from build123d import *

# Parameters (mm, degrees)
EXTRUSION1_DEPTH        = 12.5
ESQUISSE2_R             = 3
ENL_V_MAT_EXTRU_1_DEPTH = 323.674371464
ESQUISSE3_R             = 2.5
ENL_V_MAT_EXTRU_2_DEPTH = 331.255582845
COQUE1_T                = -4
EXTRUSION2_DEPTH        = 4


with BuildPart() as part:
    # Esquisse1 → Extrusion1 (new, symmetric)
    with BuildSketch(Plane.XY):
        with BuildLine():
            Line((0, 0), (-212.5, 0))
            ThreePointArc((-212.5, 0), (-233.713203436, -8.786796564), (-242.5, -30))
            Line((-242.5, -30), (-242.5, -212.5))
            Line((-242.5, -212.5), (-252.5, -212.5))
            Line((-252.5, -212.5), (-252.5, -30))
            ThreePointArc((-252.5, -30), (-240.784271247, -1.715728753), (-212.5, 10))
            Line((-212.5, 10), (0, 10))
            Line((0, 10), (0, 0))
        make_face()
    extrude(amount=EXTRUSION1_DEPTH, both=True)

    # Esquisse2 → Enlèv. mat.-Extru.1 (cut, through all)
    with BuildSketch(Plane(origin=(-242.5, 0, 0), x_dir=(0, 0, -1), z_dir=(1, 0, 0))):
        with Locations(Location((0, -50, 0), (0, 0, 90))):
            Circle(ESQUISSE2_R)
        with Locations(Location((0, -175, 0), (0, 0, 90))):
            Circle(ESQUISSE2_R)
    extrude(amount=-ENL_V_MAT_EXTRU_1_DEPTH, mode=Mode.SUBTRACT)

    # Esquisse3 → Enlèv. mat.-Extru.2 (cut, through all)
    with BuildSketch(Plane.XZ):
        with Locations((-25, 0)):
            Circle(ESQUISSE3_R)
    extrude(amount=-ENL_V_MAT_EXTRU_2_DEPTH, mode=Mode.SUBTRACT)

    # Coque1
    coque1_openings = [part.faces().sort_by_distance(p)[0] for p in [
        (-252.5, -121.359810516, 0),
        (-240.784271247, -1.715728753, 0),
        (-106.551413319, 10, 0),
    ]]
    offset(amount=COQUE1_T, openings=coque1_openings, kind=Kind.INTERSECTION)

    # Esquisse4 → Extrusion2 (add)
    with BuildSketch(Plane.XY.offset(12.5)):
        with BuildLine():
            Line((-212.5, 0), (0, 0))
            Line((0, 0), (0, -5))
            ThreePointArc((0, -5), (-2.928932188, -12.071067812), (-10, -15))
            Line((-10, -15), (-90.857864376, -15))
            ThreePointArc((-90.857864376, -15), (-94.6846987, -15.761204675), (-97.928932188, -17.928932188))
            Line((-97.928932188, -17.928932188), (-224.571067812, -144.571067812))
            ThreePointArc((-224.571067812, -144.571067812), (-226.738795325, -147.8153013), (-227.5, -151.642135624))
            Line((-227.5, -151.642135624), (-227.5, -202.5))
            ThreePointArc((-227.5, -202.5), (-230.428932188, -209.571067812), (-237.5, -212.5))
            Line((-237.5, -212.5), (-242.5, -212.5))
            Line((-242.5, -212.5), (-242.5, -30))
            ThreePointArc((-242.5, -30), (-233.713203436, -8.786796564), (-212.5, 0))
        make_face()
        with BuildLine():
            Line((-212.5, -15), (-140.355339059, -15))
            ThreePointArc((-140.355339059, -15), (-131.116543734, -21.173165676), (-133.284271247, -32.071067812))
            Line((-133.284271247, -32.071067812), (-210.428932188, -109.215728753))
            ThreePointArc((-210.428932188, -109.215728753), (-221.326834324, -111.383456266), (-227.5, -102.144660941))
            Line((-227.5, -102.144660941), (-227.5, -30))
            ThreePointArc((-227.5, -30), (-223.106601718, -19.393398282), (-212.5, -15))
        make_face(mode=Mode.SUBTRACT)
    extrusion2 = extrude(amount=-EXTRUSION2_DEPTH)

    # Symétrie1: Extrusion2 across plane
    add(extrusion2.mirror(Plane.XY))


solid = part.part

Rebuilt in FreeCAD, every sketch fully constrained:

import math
import FreeCAD as App
import Part
import Sketcher
from FreeCAD import Vector


def faces_at(feature, points):
    """Names of the faces that lie closest to the given points."""
    faces = feature.Shape.Faces
    near = lambda p: min(range(len(faces)), key=lambda i: faces[i].distToShape(Part.Vertex(*p))[0])
    return sorted({f"Face{near(p) + 1}" for p in points})

doc = App.newDocument("Part")
body = doc.addObject("PartDesign::Body", "Body")

sketch1 = body.newObject("Sketcher::SketchObject", "Sketch")
sketch1.AttachmentSupport = (doc.getObject("XY_Plane"), [""])
sketch1.MapMode = "FlatFace"
sketch1.addGeometry([
    Part.LineSegment(Vector(-212, 0, 0), Vector(0, 0, 0)),
    Part.LineSegment(Vector(0, 0, 0), Vector(0, 10, 0)),
    Part.LineSegment(Vector(0, 10, 0), Vector(-212, 10, 0)),
    Part.ArcOfCircle(Part.Circle(Vector(-212, -30, 0), Vector(0, 0, 1), 40), math.radians(90), math.radians(180)),
    Part.LineSegment(Vector(-252, -30, 0), Vector(-252, -212, 0)),
    Part.LineSegment(Vector(-252, -212, 0), Vector(-242, -212, 0)),
    Part.LineSegment(Vector(-242, -212, 0), Vector(-242, -30, 0)),
    Part.ArcOfCircle(Part.Circle(Vector(-213, -30, 0), Vector(0, 0, 1), 30), math.radians(90), math.radians(180)),
], False)
sketch1.addConstraint([
    Sketcher.Constraint("Coincident", 0, 2, 1, 1),
    Sketcher.Constraint("Coincident", 1, 2, 2, 1),
    Sketcher.Constraint("Tangent", 2, 2, 3, 1),
    Sketcher.Constraint("Tangent", 3, 2, 4, 1),
    Sketcher.Constraint("Coincident", 4, 2, 5, 1),
    Sketcher.Constraint("Coincident", 5, 2, 6, 1),
    Sketcher.Constraint("Tangent", 6, 2, 7, 2),
    Sketcher.Constraint("Tangent", 7, 1, 0, 1),
    Sketcher.Constraint("Horizontal", 0),
    Sketcher.Constraint("Vertical", 1),
    Sketcher.Constraint("Horizontal", 2),
    Sketcher.Constraint("Vertical", 4),
    Sketcher.Constraint("Horizontal", 5),
    Sketcher.Constraint("Vertical", 6),
    Sketcher.Constraint("Coincident", 0, 2, -1, 1),
    Sketcher.Constraint("Coincident", 7, 3, 3, 3),
    Sketcher.Constraint("Radius", 3, 40.0),
    Sketcher.Constraint("Radius", 7, 30.0),
    Sketcher.Constraint("DistanceX", 0, 1, 0, 2, 212.5),
    Sketcher.Constraint("DistanceY", 4, 2, 4, 1, 182.5),
])
pad1 = body.newObject("PartDesign::Pad", "Pad")
pad1.Profile = sketch1
pad1.Length = 25
pad1.Midplane = True

sketch2 = body.newObject("Sketcher::SketchObject", "Sketch001")
sketch2.AttachmentSupport = (doc.getObject("YZ_Plane"), [""])
sketch2.MapMode = "FlatFace"
sketch2.AttachmentOffset = App.Placement(Vector(0, 0, -242.5), App.Rotation())
sketch2.addGeometry([
    Part.Circle(Vector(-50, 0, 0), Vector(0, 0, 1), 3),
    Part.Circle(Vector(-175, 0, 0), Vector(0, 0, 1), 3),
], False)
sketch2.addConstraint([
    Sketcher.Constraint("Equal", 0, 1),
    Sketcher.Constraint("PointOnObject", 0, 3, -1),
    Sketcher.Constraint("PointOnObject", 1, 3, -1),
    Sketcher.Constraint("Diameter", 0, 6.0),
    Sketcher.Constraint("DistanceX", 0, 3, -1, 1, 50.0),
    Sketcher.Constraint("DistanceX", 1, 3, -1, 1, 175.0),
])
pocket1 = body.newObject("PartDesign::Pocket", "Pocket")
pocket1.Profile = sketch2
pocket1.Type = "ThroughAll"

sketch3 = body.newObject("Sketcher::SketchObject", "Sketch002")
sketch3.AttachmentSupport = (doc.getObject("XZ_Plane"), [""])
sketch3.MapMode = "FlatFace"
sketch3.addGeometry(Part.Circle(Vector(-25, 0, 0), Vector(0, 0, 1), 2.5), False)
sketch3.addConstraint([
    Sketcher.Constraint("PointOnObject", 0, 3, -1),
    Sketcher.Constraint("Diameter", 0, 5.0),
    Sketcher.Constraint("DistanceX", 0, 3, -1, 1, 25.0),
])
pocket2 = body.newObject("PartDesign::Pocket", "Pocket001")
pocket2.Profile = sketch3
pocket2.Type = "ThroughAll"
doc.recompute()

thickness = body.newObject("PartDesign::Thickness", "Thickness")
thickness.Base = (pocket2, faces_at(pocket2, [(-252.5, -121.25, 0), (-240.784, -1.716, 0), (-106.25, 10, 0)]))
thickness.Value = 4
thickness.Reversed = True
thickness.Join = "Intersection"

sketch4 = body.newObject("Sketcher::SketchObject", "Sketch003")
sketch4.AttachmentSupport = (doc.getObject("XY_Plane"), [""])
sketch4.MapMode = "FlatFace"
sketch4.AttachmentOffset = App.Placement(Vector(0, 0, 12.5), App.Rotation())
sketch4.addGeometry([
    Part.LineSegment(Vector(0, 0, 0), Vector(-212, 0, 0)),
    Part.ArcOfCircle(Part.Circle(Vector(-213, -30, 0), Vector(0, 0, 1), 30), math.radians(90), math.radians(180)),
    Part.LineSegment(Vector(-242, -30, 0), Vector(-242, -212, 0)),
    Part.LineSegment(Vector(-242, -212, 0), Vector(-238, -212, 0)),
    Part.ArcOfCircle(Part.Circle(Vector(-238, -202, 0), Vector(0, 0, 1), 10), math.radians(-90), math.radians(0)),
    Part.LineSegment(Vector(-228, -202, 0), Vector(-228, -152, 0)),
    Part.ArcOfCircle(Part.Circle(Vector(-217, -152, 0), Vector(0, 0, 1), 10), math.radians(135), math.radians(180)),
    Part.LineSegment(Vector(-225, -145, 0), Vector(-98, -18, 0)),
    Part.ArcOfCircle(Part.Circle(Vector(-91, -25, 0), Vector(0, 0, 1), 10), math.radians(90), math.radians(135)),
    Part.LineSegment(Vector(-91, -15, 0), Vector(-10, -15, 0)),
    Part.ArcOfCircle(Part.Circle(Vector(-10, -5, 0), Vector(0, 0, 1), 10), math.radians(-90), math.radians(0)),
    Part.LineSegment(Vector(0, -5, 0), Vector(0, 0, 0)),
    Part.LineSegment(Vector(-212, -15, 0), Vector(-140, -15, 0)),
    Part.ArcOfCircle(Part.Circle(Vector(-140, -25, 0), Vector(0, 0, 1), 10), math.radians(-45), math.radians(90)),
    Part.LineSegment(Vector(-133, -32, 0), Vector(-210, -109, 0)),
    Part.ArcOfCircle(Part.Circle(Vector(-218, -102, 0), Vector(0, 0, 1), 10), math.radians(180), math.radians(315)),
    Part.LineSegment(Vector(-228, -102, 0), Vector(-228, -30, 0)),
    Part.ArcOfCircle(Part.Circle(Vector(-213, -30, 0), Vector(0, 0, 1), 15), math.radians(90), math.radians(180)),
], False)
sketch4.addConstraint([
    Sketcher.Constraint("Tangent", 0, 2, 1, 1),
    Sketcher.Constraint("Tangent", 1, 2, 2, 1),
    Sketcher.Constraint("Coincident", 2, 2, 3, 1),
    Sketcher.Constraint("Tangent", 3, 2, 4, 1),
    Sketcher.Constraint("Tangent", 4, 2, 5, 1),
    Sketcher.Constraint("Tangent", 5, 2, 6, 2),
    Sketcher.Constraint("Tangent", 6, 1, 7, 1),
    Sketcher.Constraint("Tangent", 7, 2, 8, 2),
    Sketcher.Constraint("Tangent", 8, 1, 9, 1),
    Sketcher.Constraint("Tangent", 9, 2, 10, 1),
    Sketcher.Constraint("Tangent", 10, 2, 11, 1),
    Sketcher.Constraint("Coincident", 11, 2, 0, 1),
    Sketcher.Constraint("Tangent", 12, 2, 13, 2),
    Sketcher.Constraint("Tangent", 13, 1, 14, 1),
    Sketcher.Constraint("Tangent", 14, 2, 15, 2),
    Sketcher.Constraint("Tangent", 15, 1, 16, 1),
    Sketcher.Constraint("Tangent", 16, 2, 17, 2),
    Sketcher.Constraint("Tangent", 17, 1, 12, 1),
    Sketcher.Constraint("Horizontal", 0),
    Sketcher.Constraint("Vertical", 2),
    Sketcher.Constraint("Horizontal", 3),
    Sketcher.Constraint("Vertical", 5),
    Sketcher.Constraint("Horizontal", 9),
    Sketcher.Constraint("Vertical", 11),
    Sketcher.Constraint("Horizontal", 12),
    Sketcher.Constraint("Vertical", 16),
    Sketcher.Constraint("Coincident", 11, 2, -1, 1),
    Sketcher.Constraint("Coincident", 17, 3, 1, 3),
    Sketcher.Constraint("Equal", 4, 6),
    Sketcher.Constraint("Equal", 6, 8),
    Sketcher.Constraint("Equal", 8, 10),
    Sketcher.Constraint("Equal", 10, 13),
    Sketcher.Constraint("Equal", 13, 15),
    Sketcher.Constraint("Parallel", 7, 14),
    Sketcher.Constraint("Horizontal", 8, 3, 13, 3),
    Sketcher.Constraint("Vertical", 6, 3, 15, 3),
    Sketcher.Constraint("Equal", 12, 16),
    Sketcher.Constraint("Radius", 1, 30.0),
    Sketcher.Constraint("Radius", 4, 10.0),
    Sketcher.Constraint("Radius", 17, 15.0),
    Sketcher.Constraint("DistanceX", 0, 2, 0, 1, 212.5),
    Sketcher.Constraint("DistanceY", 2, 2, 2, 1, 182.5),
    Sketcher.Constraint("DistanceX", 12, 1, 12, 2, 72.144661),
    Sketcher.Constraint("DistanceX", 9, 1, 9, 2, 80.857864),
])
pad2 = body.newObject("PartDesign::Pad", "Pad001")
pad2.Profile = sketch4
pad2.Length = 4
pad2.Reversed = True
doc.recompute()

mirrored = body.newObject("PartDesign::Mirrored", "Mirrored")
mirrored.Originals = [pad2]
mirrored.MirrorPlane = (doc.getObject("XY_Plane"), [""])
body.Tip = mirrored

doc.recompute()
